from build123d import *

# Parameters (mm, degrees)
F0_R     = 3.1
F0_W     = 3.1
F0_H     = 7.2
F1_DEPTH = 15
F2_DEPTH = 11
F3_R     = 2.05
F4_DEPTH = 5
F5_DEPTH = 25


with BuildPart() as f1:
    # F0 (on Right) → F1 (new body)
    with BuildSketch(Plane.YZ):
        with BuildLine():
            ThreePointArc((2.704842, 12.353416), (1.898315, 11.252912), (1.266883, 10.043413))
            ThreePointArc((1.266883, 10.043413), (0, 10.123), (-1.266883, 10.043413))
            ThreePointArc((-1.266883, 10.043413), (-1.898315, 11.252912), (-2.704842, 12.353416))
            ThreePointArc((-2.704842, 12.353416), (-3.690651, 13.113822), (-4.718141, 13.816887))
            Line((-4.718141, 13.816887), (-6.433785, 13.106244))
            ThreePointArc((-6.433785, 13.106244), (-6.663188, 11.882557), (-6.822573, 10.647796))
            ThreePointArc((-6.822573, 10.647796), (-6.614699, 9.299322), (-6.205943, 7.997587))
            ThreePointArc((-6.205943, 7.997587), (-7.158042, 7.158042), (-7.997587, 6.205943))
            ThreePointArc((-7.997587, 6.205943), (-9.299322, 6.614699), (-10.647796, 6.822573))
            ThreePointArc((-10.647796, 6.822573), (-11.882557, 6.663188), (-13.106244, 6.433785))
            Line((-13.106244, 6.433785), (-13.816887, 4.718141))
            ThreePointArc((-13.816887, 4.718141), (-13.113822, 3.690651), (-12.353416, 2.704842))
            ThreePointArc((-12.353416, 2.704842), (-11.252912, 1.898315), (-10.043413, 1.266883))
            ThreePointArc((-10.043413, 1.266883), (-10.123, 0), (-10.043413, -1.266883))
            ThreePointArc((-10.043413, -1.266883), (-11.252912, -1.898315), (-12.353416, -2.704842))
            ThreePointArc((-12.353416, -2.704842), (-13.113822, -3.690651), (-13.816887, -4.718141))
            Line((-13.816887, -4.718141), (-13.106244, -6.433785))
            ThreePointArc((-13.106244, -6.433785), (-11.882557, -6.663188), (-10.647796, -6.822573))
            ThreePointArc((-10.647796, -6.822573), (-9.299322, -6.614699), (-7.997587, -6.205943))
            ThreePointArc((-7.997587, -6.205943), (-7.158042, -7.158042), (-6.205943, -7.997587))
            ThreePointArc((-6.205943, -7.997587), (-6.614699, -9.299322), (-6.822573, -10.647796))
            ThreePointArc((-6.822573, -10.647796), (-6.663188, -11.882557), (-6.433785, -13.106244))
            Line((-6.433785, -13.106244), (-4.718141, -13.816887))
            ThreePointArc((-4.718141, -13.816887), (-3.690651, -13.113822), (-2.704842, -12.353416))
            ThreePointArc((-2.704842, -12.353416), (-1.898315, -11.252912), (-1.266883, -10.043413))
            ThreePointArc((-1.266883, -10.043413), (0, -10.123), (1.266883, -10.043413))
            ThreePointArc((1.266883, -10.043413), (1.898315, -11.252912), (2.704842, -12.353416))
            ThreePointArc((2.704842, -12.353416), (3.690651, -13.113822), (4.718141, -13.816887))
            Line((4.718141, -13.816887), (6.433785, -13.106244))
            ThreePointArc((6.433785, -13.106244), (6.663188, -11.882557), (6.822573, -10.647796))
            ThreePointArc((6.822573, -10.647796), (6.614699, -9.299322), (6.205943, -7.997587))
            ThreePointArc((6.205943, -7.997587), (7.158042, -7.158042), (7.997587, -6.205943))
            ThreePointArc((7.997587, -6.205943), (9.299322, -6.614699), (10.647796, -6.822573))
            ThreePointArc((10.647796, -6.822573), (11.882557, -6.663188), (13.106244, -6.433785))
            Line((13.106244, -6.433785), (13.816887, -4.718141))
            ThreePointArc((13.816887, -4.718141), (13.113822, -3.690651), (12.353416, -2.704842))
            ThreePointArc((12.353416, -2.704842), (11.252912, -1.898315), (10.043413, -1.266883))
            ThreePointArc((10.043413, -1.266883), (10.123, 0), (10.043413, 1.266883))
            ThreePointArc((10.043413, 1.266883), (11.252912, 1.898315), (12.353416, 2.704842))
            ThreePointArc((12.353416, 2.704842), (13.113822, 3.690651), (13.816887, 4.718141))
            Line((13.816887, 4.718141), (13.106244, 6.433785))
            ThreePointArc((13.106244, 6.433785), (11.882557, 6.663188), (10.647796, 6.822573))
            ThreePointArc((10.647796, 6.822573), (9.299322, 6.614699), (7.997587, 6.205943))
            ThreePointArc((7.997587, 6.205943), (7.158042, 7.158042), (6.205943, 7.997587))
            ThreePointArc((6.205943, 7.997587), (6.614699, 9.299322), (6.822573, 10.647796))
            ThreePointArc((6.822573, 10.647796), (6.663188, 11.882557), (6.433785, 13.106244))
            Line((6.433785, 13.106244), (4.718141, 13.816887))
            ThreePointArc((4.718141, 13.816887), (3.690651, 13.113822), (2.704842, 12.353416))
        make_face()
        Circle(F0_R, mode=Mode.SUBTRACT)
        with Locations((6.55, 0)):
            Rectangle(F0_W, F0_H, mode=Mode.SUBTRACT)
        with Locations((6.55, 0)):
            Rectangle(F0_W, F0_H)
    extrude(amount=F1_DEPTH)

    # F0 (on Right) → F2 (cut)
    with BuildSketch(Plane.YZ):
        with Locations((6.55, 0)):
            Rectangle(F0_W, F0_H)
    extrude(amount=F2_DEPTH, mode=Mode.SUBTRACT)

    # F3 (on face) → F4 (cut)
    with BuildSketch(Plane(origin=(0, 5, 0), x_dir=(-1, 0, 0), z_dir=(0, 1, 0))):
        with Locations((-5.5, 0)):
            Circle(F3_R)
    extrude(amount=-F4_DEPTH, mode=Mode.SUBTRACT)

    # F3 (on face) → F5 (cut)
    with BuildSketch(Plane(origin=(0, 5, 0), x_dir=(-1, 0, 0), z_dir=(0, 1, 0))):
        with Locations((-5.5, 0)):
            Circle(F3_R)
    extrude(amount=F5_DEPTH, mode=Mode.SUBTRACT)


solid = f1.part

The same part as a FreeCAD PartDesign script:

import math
import FreeCAD as App
import Part
import Sketcher

V = App.Vector
Q = App.Units.Quantity

doc = App.newDocument("Part")
body = doc.addObject("PartDesign::Body", "Body")

# Sketch on YZ plane
sketch1 = body.newObject("Sketcher::SketchObject", "Sketch")
sketch1.AttachmentSupport = (doc.getObject("YZ_Plane"), [""])
sketch1.MapMode = "FlatFace"
sketch1.addGeometry(Part.ArcOfCircle(Part.Circle(V(9.6, 6.5, 0), V(0, 0, 1), 9), math.radians(139.43), math.radians(156.77)), False)
sketch1.addGeometry(Part.ArcOfCircle(Part.Circle(V(0, 0, 0), V(0, 0, 1), 10.1), math.radians(82.81), math.radians(97.19)), False)
sketch1.addGeometry(Part.ArcOfCircle(Part.Circle(V(-9.6, 6.5, 0), V(0, 0, 1), 9), math.radians(23.23), math.radians(40.57)), False)
sketch1.addGeometry(Part.ArcOfCircle(Part.Circle(V(-16.5, -4.6, 0), V(0, 0, 1), 21.9), math.radians(50.72), math.radians(57.25)), False)
sketch1.addGeometry(Part.LineSegment(V(-4.7, 13.8, 0), V(-6.4, 13.1, 0)), False)
sketch1.addGeometry(Part.ArcOfCircle(Part.Circle(V(14.9, 8.5, 0), V(0, 0, 1), 21.9), math.radians(167.75), math.radians(174.28)), False)
sketch1.addGeometry(Part.ArcOfCircle(Part.Circle(V(2.2, 11.3, 0), V(0, 0, 1), 9), math.radians(-175.57), math.radians(-158.23)), False)
sketch1.addGeometry(Part.ArcOfCircle(Part.Circle(V(0, 0, 0), V(0, 0, 1), 10.1), math.radians(127.81), math.radians(142.19)), False)
sketch1.addGeometry(Part.ArcOfCircle(Part.Circle(V(-11.3, -2.2, 0), V(0, 0, 1), 9), math.radians(68.23), math.radians(85.57)), False)
sketch1.addGeometry(Part.ArcOfCircle(Part.Circle(V(-8.5, -14.9, 0), V(0, 0, 1), 21.9), math.radians(95.72), math.radians(102.25)), False)
sketch1.addGeometry(Part.LineSegment(V(-13.1, 6.4, 0), V(-13.8, 4.7, 0)), False)
sketch1.addGeometry(Part.ArcOfCircle(Part.Circle(V(4.6, 16.5, 0), V(0, 0, 1), 21.9), math.radians(-147.25), math.radians(-140.72)), False)
sketch1.addGeometry(Part.ArcOfCircle(Part.Circle(V(-6.5, 9.6, 0), V(0, 0, 1), 9), math.radians(-130.57), math.radians(-113.23)), False)
sketch1.addGeometry(Part.ArcOfCircle(Part.Circle(V(0, 0, 0), V(0, 0, 1), 10.1), math.radians(172.81), math.radians(187.19)), False)
sketch1.addGeometry(Part.ArcOfCircle(Part.Circle(V(-6.5, -9.6, 0), V(0, 0, 1), 9), math.radians(113.23), math.radians(130.57)), False)
sketch1.addGeometry(Part.ArcOfCircle(Part.Circle(V(4.6, -16.5, 0), V(0, 0, 1), 21.9), math.radians(140.72), math.radians(147.25)), False)
sketch1.addGeometry(Part.LineSegment(V(-13.8, -4.7, 0), V(-13.1, -6.4, 0)), False)
sketch1.addGeometry(Part.ArcOfCircle(Part.Circle(V(-8.5, 14.9, 0), V(0, 0, 1), 21.9), math.radians(-102.25), math.radians(-95.72)), False)
sketch1.addGeometry(Part.ArcOfCircle(Part.Circle(V(-11.3, 2.2, 0), V(0, 0, 1), 9), math.radians(-85.57), math.radians(-68.23)), False)
sketch1.addGeometry(Part.ArcOfCircle(Part.Circle(V(0, 0, 0), V(0, 0, 1), 10.1), math.radians(-142.19), math.radians(-127.81)), False)
sketch1.addGeometry(Part.ArcOfCircle(Part.Circle(V(2.2, -11.3, 0), V(0, 0, 1), 9), math.radians(158.23), math.radians(175.57)), False)
sketch1.addGeometry(Part.ArcOfCircle(Part.Circle(V(14.9, -8.5, 0), V(0, 0, 1), 21.9), math.radians(-174.28), math.radians(-167.75)), False)
sketch1.addGeometry(Part.LineSegment(V(-6.4, -13.1, 0), V(-4.7, -13.8, 0)), False)
sketch1.addGeometry(Part.ArcOfCircle(Part.Circle(V(-16.5, 4.6, 0), V(0, 0, 1), 21.9), math.radians(-57.25), math.radians(-50.72)), False)
sketch1.addGeometry(Part.ArcOfCircle(Part.Circle(V(-9.6, -6.5, 0), V(0, 0, 1), 9), math.radians(-40.57), math.radians(-23.23)), False)
sketch1.addGeometry(Part.ArcOfCircle(Part.Circle(V(0, 0, 0), V(0, 0, 1), 10.1), math.radians(-97.19), math.radians(-82.81)), False)
sketch1.addGeometry(Part.ArcOfCircle(Part.Circle(V(9.6, -6.5, 0), V(0, 0, 1), 9), math.radians(-156.77), math.radians(-139.43)), False)
sketch1.addGeometry(Part.ArcOfCircle(Part.Circle(V(16.5, 4.6, 0), V(0, 0, 1), 21.9), math.radians(-129.28), math.radians(-122.75)), False)
sketch1.addGeometry(Part.LineSegment(V(4.7, -13.8, 0), V(6.4, -13.1, 0)), False)
sketch1.addGeometry(Part.ArcOfCircle(Part.Circle(V(-14.9, -8.5, 0), V(0, 0, 1), 21.9), math.radians(-12.25), math.radians(-5.72)), False)
sketch1.addGeometry(Part.ArcOfCircle(Part.Circle(V(-2.2, -11.3, 0), V(0, 0, 1), 9), math.radians(4.43), math.radians(21.77)), False)
sketch1.addGeometry(Part.ArcOfCircle(Part.Circle(V(0, 0, 0), V(0, 0, 1), 10.1), math.radians(-52.19), math.radians(-37.81)), False)
sketch1.addGeometry(Part.ArcOfCircle(Part.Circle(V(11.3, 2.2, 0), V(0, 0, 1), 9), math.radians(-111.77), math.radians(-94.43)), False)
sketch1.addGeometry(Part.ArcOfCircle(Part.Circle(V(8.5, 14.9, 0), V(0, 0, 1), 21.9), math.radians(-84.28), math.radians(-77.75)), False)
sketch1.addGeometry(Part.LineSegment(V(13.1, -6.4, 0), V(13.8, -4.7, 0)), False)
sketch1.addGeometry(Part.ArcOfCircle(Part.Circle(V(-4.6, -16.5, 0), V(0, 0, 1), 21.9), math.radians(32.75), math.radians(39.28)), False)
sketch1.addGeometry(Part.ArcOfCircle(Part.Circle(V(6.5, -9.6, 0), V(0, 0, 1), 9), math.radians(49.43), math.radians(66.77)), False)
sketch1.addGeometry(Part.ArcOfCircle(Part.Circle(V(0, 0, 0), V(0, 0, 1), 10.1), math.radians(-7.19), math.radians(7.19)), False)
sketch1.addGeometry(Part.ArcOfCircle(Part.Circle(V(6.5, 9.6, 0), V(0, 0, 1), 9), math.radians(-66.77), math.radians(-49.43)), False)
sketch1.addGeometry(Part.ArcOfCircle(Part.Circle(V(-4.6, 16.5, 0), V(0, 0, 1), 21.9), math.radians(-39.28), math.radians(-32.75)), False)
sketch1.addGeometry(Part.LineSegment(V(13.8, 4.7, 0), V(13.1, 6.4, 0)), False)
sketch1.addGeometry(Part.ArcOfCircle(Part.Circle(V(8.5, -14.9, 0), V(0, 0, 1), 21.9), math.radians(77.75), math.radians(84.28)), False)
sketch1.addGeometry(Part.ArcOfCircle(Part.Circle(V(11.3, -2.2, 0), V(0, 0, 1), 9), math.radians(94.43), math.radians(111.77)), False)
sketch1.addGeometry(Part.ArcOfCircle(Part.Circle(V(0, 0, 0), V(0, 0, 1), 10.1), math.radians(37.81), math.radians(52.19)), False)
sketch1.addGeometry(Part.ArcOfCircle(Part.Circle(V(-2.2, 11.3, 0), V(0, 0, 1), 9), math.radians(-21.77), math.radians(-4.43)), False)
sketch1.addGeometry(Part.ArcOfCircle(Part.Circle(V(-14.9, 8.5, 0), V(0, 0, 1), 21.9), math.radians(5.72), math.radians(12.25)), False)
sketch1.addGeometry(Part.LineSegment(V(6.4, 13.1, 0), V(4.7, 13.8, 0)), False)
sketch1.addGeometry(Part.ArcOfCircle(Part.Circle(V(16.5, -4.6, 0), V(0, 0, 1), 21.9), math.radians(122.75), math.radians(129.28)), False)
sketch1.addGeometry(Part.Circle(V(0, 0, 0), V(0, 0, 1), 3.1), False)
sketch1.addConstraint(Sketcher.Constraint("Coincident", 0, 2, 1, 1))
sketch1.addConstraint(Sketcher.Constraint("Coincident", 1, 2, 2, 1))
sketch1.addConstraint(Sketcher.Constraint("Coincident", 2, 2, 3, 1))
sketch1.addConstraint(Sketcher.Constraint("Coincident", 3, 2, 4, 1))
sketch1.addConstraint(Sketcher.Constraint("Coincident", 4, 2, 5, 1))
sketch1.addConstraint(Sketcher.Constraint("Coincident", 5, 2, 6, 1))
sketch1.addConstraint(Sketcher.Constraint("Coincident", 6, 2, 7, 1))
sketch1.addConstraint(Sketcher.Constraint("Coincident", 7, 2, 8, 1))
sketch1.addConstraint(Sketcher.Constraint("Coincident", 8, 2, 9, 1))
sketch1.addConstraint(Sketcher.Constraint("Coincident", 9, 2, 10, 1))
sketch1.addConstraint(Sketcher.Constraint("Coincident", 10, 2, 11, 1))
sketch1.addConstraint(Sketcher.Constraint("Coincident", 11, 2, 12, 1))
sketch1.addConstraint(Sketcher.Constraint("Coincident", 12, 2, 13, 1))
sketch1.addConstraint(Sketcher.Constraint("Coincident", 13, 2, 14, 1))
sketch1.addConstraint(Sketcher.Constraint("Coincident", 14, 2, 15, 1))
sketch1.addConstraint(Sketcher.Constraint("Coincident", 15, 2, 16, 1))
sketch1.addConstraint(Sketcher.Constraint("Coincident", 16, 2, 17, 1))
sketch1.addConstraint(Sketcher.Constraint("Coincident", 17, 2, 18, 1))
sketch1.addConstraint(Sketcher.Constraint("Coincident", 18, 2, 19, 1))
sketch1.addConstraint(Sketcher.Constraint("Coincident", 19, 2, 20, 1))
sketch1.addConstraint(Sketcher.Constraint("Coincident", 20, 2, 21, 1))
sketch1.addConstraint(Sketcher.Constraint("Coincident", 21, 2, 22, 1))
sketch1.addConstraint(Sketcher.Constraint("Coincident", 22, 2, 23, 1))
sketch1.addConstraint(Sketcher.Constraint("Coincident", 23, 2, 24, 1))
sketch1.addConstraint(Sketcher.Constraint("Coincident", 24, 2, 25, 1))
sketch1.addConstraint(Sketcher.Constraint("Coincident", 25, 2, 26, 1))
sketch1.addConstraint(Sketcher.Constraint("Coincident", 26, 2, 27, 1))
sketch1.addConstraint(Sketcher.Constraint("Coincident", 27, 2, 28, 1))
sketch1.addConstraint(Sketcher.Constraint("Coincident", 28, 2, 29, 1))
sketch1.addConstraint(Sketcher.Constraint("Coincident", 29, 2, 30, 1))
sketch1.addConstraint(Sketcher.Constraint("Coincident", 30, 2, 31, 1))
sketch1.addConstraint(Sketcher.Constraint("Coincident", 31, 2, 32, 1))
sketch1.addConstraint(Sketcher.Constraint("Coincident", 32, 2, 33, 1))
sketch1.addConstraint(Sketcher.Constraint("Coincident", 33, 2, 34, 1))
sketch1.addConstraint(Sketcher.Constraint("Coincident", 34, 2, 35, 1))
sketch1.addConstraint(Sketcher.Constraint("Coincident", 35, 2, 36, 1))
sketch1.addConstraint(Sketcher.Constraint("Coincident", 36, 2, 37, 1))
sketch1.addConstraint(Sketcher.Constraint("Coincident", 37, 2, 38, 1))
sketch1.addConstraint(Sketcher.Constraint("Coincident", 38, 2, 39, 1))
sketch1.addConstraint(Sketcher.Constraint("Coincident", 39, 2, 40, 1))
sketch1.addConstraint(Sketcher.Constraint("Coincident", 40, 2, 41, 1))
sketch1.addConstraint(Sketcher.Constraint("Coincident", 41, 2, 42, 1))
sketch1.addConstraint(Sketcher.Constraint("Coincident", 42, 2, 43, 1))
sketch1.addConstraint(Sketcher.Constraint("Coincident", 43, 2, 44, 1))
sketch1.addConstraint(Sketcher.Constraint("Coincident", 44, 2, 45, 1))
sketch1.addConstraint(Sketcher.Constraint("Coincident", 45, 2, 46, 1))
sketch1.addConstraint(Sketcher.Constraint("Coincident", 46, 2, 47, 1))
sketch1.addConstraint(Sketcher.Constraint("Coincident", 47, 2, 0, 1))
sketch1.addConstraint(Sketcher.Constraint("Coincident", 48, 3, -1, 1))
sketch1.addConstraint(Sketcher.Constraint("Equal", 0, 2))
sketch1.addConstraint(Sketcher.Constraint("Equal", 6, 8))
sketch1.addConstraint(Sketcher.Constraint("Equal", 5, 9))
sketch1.addConstraint(Sketcher.Constraint("Equal", 3, 11))
sketch1.addConstraint(Sketcher.Constraint("Equal", 2, 12))
sketch1.addConstraint(Sketcher.Constraint("Equal", 1, 13))
sketch1.addConstraint(Sketcher.Constraint("Equal", 12, 14))
sketch1.addConstraint(Sketcher.Constraint("Equal", 11, 15))
sketch1.addConstraint(Sketcher.Constraint("Equal", 9, 17))
sketch1.addConstraint(Sketcher.Constraint("Equal", 8, 18))
sketch1.addConstraint(Sketcher.Constraint("Equal", 7, 19))
sketch1.addConstraint(Sketcher.Constraint("Equal", 18, 20))
sketch1.addConstraint(Sketcher.Constraint("Equal", 17, 21))
sketch1.addConstraint(Sketcher.Constraint("Equal", 15, 23))
sketch1.addConstraint(Sketcher.Constraint("Equal", 14, 24))
sketch1.addConstraint(Sketcher.Constraint("Equal", 13, 25))
sketch1.addConstraint(Sketcher.Constraint("Equal", 24, 26))
sketch1.addConstraint(Sketcher.Constraint("Equal", 23, 27))
sketch1.addConstraint(Sketcher.Constraint("Equal", 21, 29))
sketch1.addConstraint(Sketcher.Constraint("Equal", 20, 30))
sketch1.addConstraint(Sketcher.Constraint("Equal", 19, 31))
sketch1.addConstraint(Sketcher.Constraint("Equal", 30, 32))
sketch1.addConstraint(Sketcher.Constraint("Equal", 29, 33))
sketch1.addConstraint(Sketcher.Constraint("Equal", 27, 35))
sketch1.addConstraint(Sketcher.Constraint("Equal", 26, 36))
sketch1.addConstraint(Sketcher.Constraint("Equal", 25, 37))
sketch1.addConstraint(Sketcher.Constraint("Equal", 36, 38))
sketch1.addConstraint(Sketcher.Constraint("Equal", 35, 39))
sketch1.addConstraint(Sketcher.Constraint("Equal", 33, 41))
sketch1.addConstraint(Sketcher.Constraint("Equal", 32, 42))
sketch1.addConstraint(Sketcher.Constraint("Equal", 31, 43))
sketch1.addConstraint(Sketcher.Constraint("Equal", 42, 44))
sketch1.addConstraint(Sketcher.Constraint("Equal", 41, 45))
sketch1.addConstraint(Sketcher.Constraint("Equal", 39, 47))
sketch1.addConstraint(Sketcher.Constraint("Symmetric", 0, 3, 24, 3, -1, 1))
sketch1.addConstraint(Sketcher.Constraint("Symmetric", 1, 3, 25, 3, -1, 1))
sketch1.addConstraint(Sketcher.Constraint("Symmetric", 2, 3, 26, 3, -1, 1))
sketch1.addConstraint(Sketcher.Constraint("Symmetric", 3, 3, 27, 3, -1, 1))
sketch1.addConstraint(Sketcher.Constraint("Symmetric", 5, 3, 29, 3, -1, 1))
sketch1.addConstraint(Sketcher.Constraint("Symmetric", 6, 3, 30, 3, -1, 1))
sketch1.addConstraint(Sketcher.Constraint("Symmetric", 7, 3, 31, 3, -1, 1))
sketch1.addConstraint(Sketcher.Constraint("Symmetric", 8, 3, 32, 3, -1, 1))
sketch1.addConstraint(Sketcher.Constraint("Symmetric", 9, 3, 33, 3, -1, 1))
sketch1.addConstraint(Sketcher.Constraint("Symmetric", 11, 3, 35, 3, -1, 1))
sketch1.addConstraint(Sketcher.Constraint("Symmetric", 12, 3, 36, 3, -1, 1))
sketch1.addConstraint(Sketcher.Constraint("Symmetric", 13, 3, 37, 3, -1, 1))
sketch1.addConstraint(Sketcher.Constraint("Symmetric", 14, 3, 38, 3, -1, 1))
sketch1.addConstraint(Sketcher.Constraint("Symmetric", 15, 3, 39, 3, -1, 1))
sketch1.addConstraint(Sketcher.Constraint("Symmetric", 17, 3, 41, 3, -1, 1))
sketch1.addConstraint(Sketcher.Constraint("Symmetric", 18, 3, 42, 3, -1, 1))
sketch1.addConstraint(Sketcher.Constraint("Symmetric", 19, 3, 43, 3, -1, 1))
sketch1.addConstraint(Sketcher.Constraint("Symmetric", 20, 3, 44, 3, -1, 1))
sketch1.addConstraint(Sketcher.Constraint("Symmetric", 21, 3, 45, 3, -1, 1))
sketch1.addConstraint(Sketcher.Constraint("Symmetric", 23, 3, 47, 3, -1, 1))
sketch1.addConstraint(Sketcher.Constraint("Symmetric", 0, 3, 2, 3, -2))
sketch1.addConstraint(Sketcher.Constraint("Symmetric", 23, 3, 27, 3, -2))
sketch1.addConstraint(Sketcher.Constraint("Symmetric", 21, 3, 29, 3, -2))
sketch1.addConstraint(Sketcher.Constraint("Symmetric", 20, 3, 30, 3, -2))
sketch1.addConstraint(Sketcher.Constraint("Symmetric", 19, 3, 31, 3, -2))
sketch1.addConstraint(Sketcher.Constraint("Symmetric", 18, 3, 32, 3, -2))
sketch1.addConstraint(Sketcher.Constraint("Symmetric", 17, 3, 33, 3, -2))
sketch1.addConstraint(Sketcher.Constraint("Symmetric", 15, 3, 35, 3, -2))
sketch1.addConstraint(Sketcher.Constraint("Symmetric", 14, 3, 36, 3, -2))
sketch1.addConstraint(Sketcher.Constraint("PointOnObject", 1, 3, -2))
sketch1.addConstraint(Sketcher.Constraint("PointOnObject", 13, 3, -1))
sketch1.addConstraint(Sketcher.Constraint("Perpendicular", 4, 16))
sketch1.addConstraint(Sketcher.Constraint("Perpendicular", 10, 22))
sketch1.addConstraint(Sketcher.Constraint("Perpendicular", 16, 28))
sketch1.addConstraint(Sketcher.Constraint("Perpendicular", 22, 34))
sketch1.addConstraint(Sketcher.Constraint("Perpendicular", 28, 40))
sketch1.addConstraint(Sketcher.Constraint("Perpendicular", 34, 46))
sketch1.addConstraint(Sketcher.Constraint("Horizontal", 22, 2, 27, 2))
sketch1.addConstraint(Sketcher.Constraint("Horizontal", 21, 2, 28, 2))
sketch1.addConstraint(Sketcher.Constraint("Horizontal", 16, 2, 33, 2))
sketch1.addConstraint(Sketcher.Constraint("Horizontal", 10, 2, 39, 2))
sketch1.addConstraint(Sketcher.Constraint("Horizontal", 4, 2, 45, 2))
sketch1.addConstraint(Sketcher.Constraint("Vertical", 10, 2, 15, 2))
sketch1.addConstraint(Sketcher.Constraint("Vertical", 4, 2, 21, 2))
sketch1.addConstraint(Sketcher.Constraint("Equal", 4, 10))
sketch1.addConstraint(Sketcher.Constraint("Diameter", 48, Q("6.2 mm")))
sketch1.addConstraint(Sketcher.Constraint("Angle", 4, Q("-157.5 deg")))
sketch1.addConstraint(Sketcher.Constraint("Radius", 5, Q("21.865901 mm")))
sketch1.addConstraint(Sketcher.Constraint("Radius", 1, Q("10.123052 mm")))
sketch1.addConstraint(Sketcher.Constraint("Distance", 4, Q("1.857 mm")))
sketch1.addConstraint(Sketcher.Constraint("Radius", 0, Q("9.026008 mm")))
sketch1.addConstraint(Sketcher.Constraint("Radius", 3, Q("21.865583 mm")))
sketch1.addConstraint(Sketcher.Constraint("Radius", 6, Q("9.026014 mm")))
sketch1.addConstraint(Sketcher.Constraint("Radius", 7, Q("10.122974 mm")))
sketch1.addConstraint(Sketcher.Constraint("DistanceX", -1, 1, 0, 3, Q("9.560978 mm")))
sketch1.addConstraint(Sketcher.Constraint("DistanceX", 3, 3, -1, 1, Q("16.547079 mm")))
sketch1.addConstraint(Sketcher.Constraint("DistanceX", -1, 1, 5, 3, Q("14.93431 mm")))
sketch1.addConstraint(Sketcher.Constraint("DistanceY", -1, 1, 5, 3, Q("8.467049 mm")))
sketch1.addConstraint(Sketcher.Constraint("DistanceX", -1, 1, 6, 3, Q("2.17649 mm")))
sketch1.addConstraint(Sketcher.Constraint("DistanceY", 8, 3, -1, 1, Q("2.17649 mm")))
sketch1.addConstraint(Sketcher.Constraint("DistanceX", 9, 3, -1, 1, Q("8.467049 mm")))
sketch1.addConstraint(Sketcher.Constraint("DistanceY", 9, 3, -1, 1, Q("14.93431 mm")))
sketch1.addConstraint(Sketcher.Constraint("DistanceY", -1, 1, 11, 3, Q("16.547079 mm")))
sketch1.addConstraint(Sketcher.Constraint("DistanceY", -1, 1, 12, 3, Q("9.560978 mm")))
sketch1.addConstraint(Sketcher.Constraint("DistanceX", 2, 2, -1, 1, Q("2.704842 mm")))
sketch1.addConstraint(Sketcher.Constraint("DistanceX", 3, 2, -1, 1, Q("4.718141 mm")))
sketch1.addConstraint(Sketcher.Constraint("DistanceY", -1, 1, 10, 2, Q("4.718141 mm")))
sketch1.addConstraint(Sketcher.Constraint("DistanceY", -1, 1, 11, 2, Q("2.704842 mm")))
sketch1.addConstraint(Sketcher.Constraint("DistanceY", -1, 1, 6, 3, Q("11.344787 mm")))
sketch1.addConstraint(Sketcher.Constraint("DistanceX", 8, 3, -1, 1, Q("11.344787 mm")))
sketch1.addConstraint(Sketcher.Constraint("DistanceX", -1, 1, 0, 2, Q("1.266883 mm")))
sketch1.addConstraint(Sketcher.Constraint("DistanceX", 6, 2, -1, 1, Q("6.205943 mm")))
sketch1.addConstraint(Sketcher.Constraint("DistanceX", 7, 2, -1, 1, Q("7.997587 mm")))
sketch1.addConstraint(Sketcher.Constraint("DistanceX", 12, 2, -1, 1, Q("10.043413 mm")))
pad1 = body.newObject("PartDesign::Pad", "Pad")
pad1.Profile = sketch1
pad1.Length = 15

# Sketch on YZ plane
sketch2 = body.newObject("Sketcher::SketchObject", "Sketch001")
sketch2.AttachmentSupport = (doc.getObject("YZ_Plane"), [""])
sketch2.MapMode = "FlatFace"
sketch2.addGeometry(Part.LineSegment(V(5, 3.6, 0), V(5, -3.6, 0)), False)
sketch2.addGeometry(Part.LineSegment(V(5, -3.6, 0), V(8.1, -3.6, 0)), False)
sketch2.addGeometry(Part.LineSegment(V(8.1, -3.6, 0), V(8.1, 3.6, 0)), False)
sketch2.addGeometry(Part.LineSegment(V(8.1, 3.6, 0), V(5, 3.6, 0)), False)
sketch2.addConstraint(Sketcher.Constraint("Coincident", 0, 2, 1, 1))
sketch2.addConstraint(Sketcher.Constraint("Coincident", 1, 2, 2, 1))
sketch2.addConstraint(Sketcher.Constraint("Coincident", 2, 2, 3, 1))
sketch2.addConstraint(Sketcher.Constraint("Coincident", 3, 2, 0, 1))
sketch2.addConstraint(Sketcher.Constraint("Vertical", 0))
sketch2.addConstraint(Sketcher.Constraint("Horizontal", 1))
sketch2.addConstraint(Sketcher.Constraint("Vertical", 2))
sketch2.addConstraint(Sketcher.Constraint("Horizontal", 3))
sketch2.addConstraint(Sketcher.Constraint("DistanceX", 1, 1, 1, 2, Q("3.1 mm")))
sketch2.addConstraint(Sketcher.Constraint("DistanceY", 0, 2, 0, 1, Q("7.2 mm")))
sketch2.addConstraint(Sketcher.Constraint("DistanceX", -1, 1, 0, 2, Q("5 mm")))
sketch2.addConstraint(Sketcher.Constraint("DistanceY", 0, 2, -1, 1, Q("3.6 mm")))
pocket1 = body.newObject("PartDesign::Pocket", "Pocket")
pocket1.Profile = sketch2
pocket1.Length = 11
pocket1.Reversed = True

# Sketch on XZ plane
sketch3 = body.newObject("Sketcher::SketchObject", "Sketch002")
sketch3.AttachmentSupport = (doc.getObject("XZ_Plane"), [""])
sketch3.MapMode = "FlatFace"
sketch3.AttachmentOffset = App.Placement(V(0, 0, -5), App.Rotation())
sketch3.addGeometry(Part.Circle(V(5.5, 0, 0), V(0, 0, 1), 2), False)
sketch3.addConstraint(Sketcher.Constraint("PointOnObject", 0, 3, -1))
sketch3.addConstraint(Sketcher.Constraint("Diameter", 0, Q("4.1 mm")))
sketch3.addConstraint(Sketcher.Constraint("DistanceX", -1, 1, 0, 3, Q("5.5 mm")))
pocket2 = body.newObject("PartDesign::Pocket", "Pocket001")
pocket2.Profile = sketch3
pocket2.Length = 5
pocket2.Reversed = True

# Sketch on XZ plane
sketch4 = body.newObject("Sketcher::SketchObject", "Sketch003")
sketch4.AttachmentSupport = (doc.getObject("XZ_Plane"), [""])
sketch4.MapMode = "FlatFace"
sketch4.AttachmentOffset = App.Placement(V(0, 0, -5), App.Rotation())
sketch4.addGeometry(Part.Circle(V(5.5, 0, 0), V(0, 0, 1), 2), False)
sketch4.addConstraint(Sketcher.Constraint("PointOnObject", 0, 3, -1))
sketch4.addConstraint(Sketcher.Constraint("Diameter", 0, Q("4.1 mm")))
sketch4.addConstraint(Sketcher.Constraint("DistanceX", -1, 1, 0, 3, Q("5.5 mm")))
pocket3 = body.newObject("PartDesign::Pocket", "Pocket002")
pocket3.Profile = sketch4
pocket3.Length = 25

doc.recompute()
